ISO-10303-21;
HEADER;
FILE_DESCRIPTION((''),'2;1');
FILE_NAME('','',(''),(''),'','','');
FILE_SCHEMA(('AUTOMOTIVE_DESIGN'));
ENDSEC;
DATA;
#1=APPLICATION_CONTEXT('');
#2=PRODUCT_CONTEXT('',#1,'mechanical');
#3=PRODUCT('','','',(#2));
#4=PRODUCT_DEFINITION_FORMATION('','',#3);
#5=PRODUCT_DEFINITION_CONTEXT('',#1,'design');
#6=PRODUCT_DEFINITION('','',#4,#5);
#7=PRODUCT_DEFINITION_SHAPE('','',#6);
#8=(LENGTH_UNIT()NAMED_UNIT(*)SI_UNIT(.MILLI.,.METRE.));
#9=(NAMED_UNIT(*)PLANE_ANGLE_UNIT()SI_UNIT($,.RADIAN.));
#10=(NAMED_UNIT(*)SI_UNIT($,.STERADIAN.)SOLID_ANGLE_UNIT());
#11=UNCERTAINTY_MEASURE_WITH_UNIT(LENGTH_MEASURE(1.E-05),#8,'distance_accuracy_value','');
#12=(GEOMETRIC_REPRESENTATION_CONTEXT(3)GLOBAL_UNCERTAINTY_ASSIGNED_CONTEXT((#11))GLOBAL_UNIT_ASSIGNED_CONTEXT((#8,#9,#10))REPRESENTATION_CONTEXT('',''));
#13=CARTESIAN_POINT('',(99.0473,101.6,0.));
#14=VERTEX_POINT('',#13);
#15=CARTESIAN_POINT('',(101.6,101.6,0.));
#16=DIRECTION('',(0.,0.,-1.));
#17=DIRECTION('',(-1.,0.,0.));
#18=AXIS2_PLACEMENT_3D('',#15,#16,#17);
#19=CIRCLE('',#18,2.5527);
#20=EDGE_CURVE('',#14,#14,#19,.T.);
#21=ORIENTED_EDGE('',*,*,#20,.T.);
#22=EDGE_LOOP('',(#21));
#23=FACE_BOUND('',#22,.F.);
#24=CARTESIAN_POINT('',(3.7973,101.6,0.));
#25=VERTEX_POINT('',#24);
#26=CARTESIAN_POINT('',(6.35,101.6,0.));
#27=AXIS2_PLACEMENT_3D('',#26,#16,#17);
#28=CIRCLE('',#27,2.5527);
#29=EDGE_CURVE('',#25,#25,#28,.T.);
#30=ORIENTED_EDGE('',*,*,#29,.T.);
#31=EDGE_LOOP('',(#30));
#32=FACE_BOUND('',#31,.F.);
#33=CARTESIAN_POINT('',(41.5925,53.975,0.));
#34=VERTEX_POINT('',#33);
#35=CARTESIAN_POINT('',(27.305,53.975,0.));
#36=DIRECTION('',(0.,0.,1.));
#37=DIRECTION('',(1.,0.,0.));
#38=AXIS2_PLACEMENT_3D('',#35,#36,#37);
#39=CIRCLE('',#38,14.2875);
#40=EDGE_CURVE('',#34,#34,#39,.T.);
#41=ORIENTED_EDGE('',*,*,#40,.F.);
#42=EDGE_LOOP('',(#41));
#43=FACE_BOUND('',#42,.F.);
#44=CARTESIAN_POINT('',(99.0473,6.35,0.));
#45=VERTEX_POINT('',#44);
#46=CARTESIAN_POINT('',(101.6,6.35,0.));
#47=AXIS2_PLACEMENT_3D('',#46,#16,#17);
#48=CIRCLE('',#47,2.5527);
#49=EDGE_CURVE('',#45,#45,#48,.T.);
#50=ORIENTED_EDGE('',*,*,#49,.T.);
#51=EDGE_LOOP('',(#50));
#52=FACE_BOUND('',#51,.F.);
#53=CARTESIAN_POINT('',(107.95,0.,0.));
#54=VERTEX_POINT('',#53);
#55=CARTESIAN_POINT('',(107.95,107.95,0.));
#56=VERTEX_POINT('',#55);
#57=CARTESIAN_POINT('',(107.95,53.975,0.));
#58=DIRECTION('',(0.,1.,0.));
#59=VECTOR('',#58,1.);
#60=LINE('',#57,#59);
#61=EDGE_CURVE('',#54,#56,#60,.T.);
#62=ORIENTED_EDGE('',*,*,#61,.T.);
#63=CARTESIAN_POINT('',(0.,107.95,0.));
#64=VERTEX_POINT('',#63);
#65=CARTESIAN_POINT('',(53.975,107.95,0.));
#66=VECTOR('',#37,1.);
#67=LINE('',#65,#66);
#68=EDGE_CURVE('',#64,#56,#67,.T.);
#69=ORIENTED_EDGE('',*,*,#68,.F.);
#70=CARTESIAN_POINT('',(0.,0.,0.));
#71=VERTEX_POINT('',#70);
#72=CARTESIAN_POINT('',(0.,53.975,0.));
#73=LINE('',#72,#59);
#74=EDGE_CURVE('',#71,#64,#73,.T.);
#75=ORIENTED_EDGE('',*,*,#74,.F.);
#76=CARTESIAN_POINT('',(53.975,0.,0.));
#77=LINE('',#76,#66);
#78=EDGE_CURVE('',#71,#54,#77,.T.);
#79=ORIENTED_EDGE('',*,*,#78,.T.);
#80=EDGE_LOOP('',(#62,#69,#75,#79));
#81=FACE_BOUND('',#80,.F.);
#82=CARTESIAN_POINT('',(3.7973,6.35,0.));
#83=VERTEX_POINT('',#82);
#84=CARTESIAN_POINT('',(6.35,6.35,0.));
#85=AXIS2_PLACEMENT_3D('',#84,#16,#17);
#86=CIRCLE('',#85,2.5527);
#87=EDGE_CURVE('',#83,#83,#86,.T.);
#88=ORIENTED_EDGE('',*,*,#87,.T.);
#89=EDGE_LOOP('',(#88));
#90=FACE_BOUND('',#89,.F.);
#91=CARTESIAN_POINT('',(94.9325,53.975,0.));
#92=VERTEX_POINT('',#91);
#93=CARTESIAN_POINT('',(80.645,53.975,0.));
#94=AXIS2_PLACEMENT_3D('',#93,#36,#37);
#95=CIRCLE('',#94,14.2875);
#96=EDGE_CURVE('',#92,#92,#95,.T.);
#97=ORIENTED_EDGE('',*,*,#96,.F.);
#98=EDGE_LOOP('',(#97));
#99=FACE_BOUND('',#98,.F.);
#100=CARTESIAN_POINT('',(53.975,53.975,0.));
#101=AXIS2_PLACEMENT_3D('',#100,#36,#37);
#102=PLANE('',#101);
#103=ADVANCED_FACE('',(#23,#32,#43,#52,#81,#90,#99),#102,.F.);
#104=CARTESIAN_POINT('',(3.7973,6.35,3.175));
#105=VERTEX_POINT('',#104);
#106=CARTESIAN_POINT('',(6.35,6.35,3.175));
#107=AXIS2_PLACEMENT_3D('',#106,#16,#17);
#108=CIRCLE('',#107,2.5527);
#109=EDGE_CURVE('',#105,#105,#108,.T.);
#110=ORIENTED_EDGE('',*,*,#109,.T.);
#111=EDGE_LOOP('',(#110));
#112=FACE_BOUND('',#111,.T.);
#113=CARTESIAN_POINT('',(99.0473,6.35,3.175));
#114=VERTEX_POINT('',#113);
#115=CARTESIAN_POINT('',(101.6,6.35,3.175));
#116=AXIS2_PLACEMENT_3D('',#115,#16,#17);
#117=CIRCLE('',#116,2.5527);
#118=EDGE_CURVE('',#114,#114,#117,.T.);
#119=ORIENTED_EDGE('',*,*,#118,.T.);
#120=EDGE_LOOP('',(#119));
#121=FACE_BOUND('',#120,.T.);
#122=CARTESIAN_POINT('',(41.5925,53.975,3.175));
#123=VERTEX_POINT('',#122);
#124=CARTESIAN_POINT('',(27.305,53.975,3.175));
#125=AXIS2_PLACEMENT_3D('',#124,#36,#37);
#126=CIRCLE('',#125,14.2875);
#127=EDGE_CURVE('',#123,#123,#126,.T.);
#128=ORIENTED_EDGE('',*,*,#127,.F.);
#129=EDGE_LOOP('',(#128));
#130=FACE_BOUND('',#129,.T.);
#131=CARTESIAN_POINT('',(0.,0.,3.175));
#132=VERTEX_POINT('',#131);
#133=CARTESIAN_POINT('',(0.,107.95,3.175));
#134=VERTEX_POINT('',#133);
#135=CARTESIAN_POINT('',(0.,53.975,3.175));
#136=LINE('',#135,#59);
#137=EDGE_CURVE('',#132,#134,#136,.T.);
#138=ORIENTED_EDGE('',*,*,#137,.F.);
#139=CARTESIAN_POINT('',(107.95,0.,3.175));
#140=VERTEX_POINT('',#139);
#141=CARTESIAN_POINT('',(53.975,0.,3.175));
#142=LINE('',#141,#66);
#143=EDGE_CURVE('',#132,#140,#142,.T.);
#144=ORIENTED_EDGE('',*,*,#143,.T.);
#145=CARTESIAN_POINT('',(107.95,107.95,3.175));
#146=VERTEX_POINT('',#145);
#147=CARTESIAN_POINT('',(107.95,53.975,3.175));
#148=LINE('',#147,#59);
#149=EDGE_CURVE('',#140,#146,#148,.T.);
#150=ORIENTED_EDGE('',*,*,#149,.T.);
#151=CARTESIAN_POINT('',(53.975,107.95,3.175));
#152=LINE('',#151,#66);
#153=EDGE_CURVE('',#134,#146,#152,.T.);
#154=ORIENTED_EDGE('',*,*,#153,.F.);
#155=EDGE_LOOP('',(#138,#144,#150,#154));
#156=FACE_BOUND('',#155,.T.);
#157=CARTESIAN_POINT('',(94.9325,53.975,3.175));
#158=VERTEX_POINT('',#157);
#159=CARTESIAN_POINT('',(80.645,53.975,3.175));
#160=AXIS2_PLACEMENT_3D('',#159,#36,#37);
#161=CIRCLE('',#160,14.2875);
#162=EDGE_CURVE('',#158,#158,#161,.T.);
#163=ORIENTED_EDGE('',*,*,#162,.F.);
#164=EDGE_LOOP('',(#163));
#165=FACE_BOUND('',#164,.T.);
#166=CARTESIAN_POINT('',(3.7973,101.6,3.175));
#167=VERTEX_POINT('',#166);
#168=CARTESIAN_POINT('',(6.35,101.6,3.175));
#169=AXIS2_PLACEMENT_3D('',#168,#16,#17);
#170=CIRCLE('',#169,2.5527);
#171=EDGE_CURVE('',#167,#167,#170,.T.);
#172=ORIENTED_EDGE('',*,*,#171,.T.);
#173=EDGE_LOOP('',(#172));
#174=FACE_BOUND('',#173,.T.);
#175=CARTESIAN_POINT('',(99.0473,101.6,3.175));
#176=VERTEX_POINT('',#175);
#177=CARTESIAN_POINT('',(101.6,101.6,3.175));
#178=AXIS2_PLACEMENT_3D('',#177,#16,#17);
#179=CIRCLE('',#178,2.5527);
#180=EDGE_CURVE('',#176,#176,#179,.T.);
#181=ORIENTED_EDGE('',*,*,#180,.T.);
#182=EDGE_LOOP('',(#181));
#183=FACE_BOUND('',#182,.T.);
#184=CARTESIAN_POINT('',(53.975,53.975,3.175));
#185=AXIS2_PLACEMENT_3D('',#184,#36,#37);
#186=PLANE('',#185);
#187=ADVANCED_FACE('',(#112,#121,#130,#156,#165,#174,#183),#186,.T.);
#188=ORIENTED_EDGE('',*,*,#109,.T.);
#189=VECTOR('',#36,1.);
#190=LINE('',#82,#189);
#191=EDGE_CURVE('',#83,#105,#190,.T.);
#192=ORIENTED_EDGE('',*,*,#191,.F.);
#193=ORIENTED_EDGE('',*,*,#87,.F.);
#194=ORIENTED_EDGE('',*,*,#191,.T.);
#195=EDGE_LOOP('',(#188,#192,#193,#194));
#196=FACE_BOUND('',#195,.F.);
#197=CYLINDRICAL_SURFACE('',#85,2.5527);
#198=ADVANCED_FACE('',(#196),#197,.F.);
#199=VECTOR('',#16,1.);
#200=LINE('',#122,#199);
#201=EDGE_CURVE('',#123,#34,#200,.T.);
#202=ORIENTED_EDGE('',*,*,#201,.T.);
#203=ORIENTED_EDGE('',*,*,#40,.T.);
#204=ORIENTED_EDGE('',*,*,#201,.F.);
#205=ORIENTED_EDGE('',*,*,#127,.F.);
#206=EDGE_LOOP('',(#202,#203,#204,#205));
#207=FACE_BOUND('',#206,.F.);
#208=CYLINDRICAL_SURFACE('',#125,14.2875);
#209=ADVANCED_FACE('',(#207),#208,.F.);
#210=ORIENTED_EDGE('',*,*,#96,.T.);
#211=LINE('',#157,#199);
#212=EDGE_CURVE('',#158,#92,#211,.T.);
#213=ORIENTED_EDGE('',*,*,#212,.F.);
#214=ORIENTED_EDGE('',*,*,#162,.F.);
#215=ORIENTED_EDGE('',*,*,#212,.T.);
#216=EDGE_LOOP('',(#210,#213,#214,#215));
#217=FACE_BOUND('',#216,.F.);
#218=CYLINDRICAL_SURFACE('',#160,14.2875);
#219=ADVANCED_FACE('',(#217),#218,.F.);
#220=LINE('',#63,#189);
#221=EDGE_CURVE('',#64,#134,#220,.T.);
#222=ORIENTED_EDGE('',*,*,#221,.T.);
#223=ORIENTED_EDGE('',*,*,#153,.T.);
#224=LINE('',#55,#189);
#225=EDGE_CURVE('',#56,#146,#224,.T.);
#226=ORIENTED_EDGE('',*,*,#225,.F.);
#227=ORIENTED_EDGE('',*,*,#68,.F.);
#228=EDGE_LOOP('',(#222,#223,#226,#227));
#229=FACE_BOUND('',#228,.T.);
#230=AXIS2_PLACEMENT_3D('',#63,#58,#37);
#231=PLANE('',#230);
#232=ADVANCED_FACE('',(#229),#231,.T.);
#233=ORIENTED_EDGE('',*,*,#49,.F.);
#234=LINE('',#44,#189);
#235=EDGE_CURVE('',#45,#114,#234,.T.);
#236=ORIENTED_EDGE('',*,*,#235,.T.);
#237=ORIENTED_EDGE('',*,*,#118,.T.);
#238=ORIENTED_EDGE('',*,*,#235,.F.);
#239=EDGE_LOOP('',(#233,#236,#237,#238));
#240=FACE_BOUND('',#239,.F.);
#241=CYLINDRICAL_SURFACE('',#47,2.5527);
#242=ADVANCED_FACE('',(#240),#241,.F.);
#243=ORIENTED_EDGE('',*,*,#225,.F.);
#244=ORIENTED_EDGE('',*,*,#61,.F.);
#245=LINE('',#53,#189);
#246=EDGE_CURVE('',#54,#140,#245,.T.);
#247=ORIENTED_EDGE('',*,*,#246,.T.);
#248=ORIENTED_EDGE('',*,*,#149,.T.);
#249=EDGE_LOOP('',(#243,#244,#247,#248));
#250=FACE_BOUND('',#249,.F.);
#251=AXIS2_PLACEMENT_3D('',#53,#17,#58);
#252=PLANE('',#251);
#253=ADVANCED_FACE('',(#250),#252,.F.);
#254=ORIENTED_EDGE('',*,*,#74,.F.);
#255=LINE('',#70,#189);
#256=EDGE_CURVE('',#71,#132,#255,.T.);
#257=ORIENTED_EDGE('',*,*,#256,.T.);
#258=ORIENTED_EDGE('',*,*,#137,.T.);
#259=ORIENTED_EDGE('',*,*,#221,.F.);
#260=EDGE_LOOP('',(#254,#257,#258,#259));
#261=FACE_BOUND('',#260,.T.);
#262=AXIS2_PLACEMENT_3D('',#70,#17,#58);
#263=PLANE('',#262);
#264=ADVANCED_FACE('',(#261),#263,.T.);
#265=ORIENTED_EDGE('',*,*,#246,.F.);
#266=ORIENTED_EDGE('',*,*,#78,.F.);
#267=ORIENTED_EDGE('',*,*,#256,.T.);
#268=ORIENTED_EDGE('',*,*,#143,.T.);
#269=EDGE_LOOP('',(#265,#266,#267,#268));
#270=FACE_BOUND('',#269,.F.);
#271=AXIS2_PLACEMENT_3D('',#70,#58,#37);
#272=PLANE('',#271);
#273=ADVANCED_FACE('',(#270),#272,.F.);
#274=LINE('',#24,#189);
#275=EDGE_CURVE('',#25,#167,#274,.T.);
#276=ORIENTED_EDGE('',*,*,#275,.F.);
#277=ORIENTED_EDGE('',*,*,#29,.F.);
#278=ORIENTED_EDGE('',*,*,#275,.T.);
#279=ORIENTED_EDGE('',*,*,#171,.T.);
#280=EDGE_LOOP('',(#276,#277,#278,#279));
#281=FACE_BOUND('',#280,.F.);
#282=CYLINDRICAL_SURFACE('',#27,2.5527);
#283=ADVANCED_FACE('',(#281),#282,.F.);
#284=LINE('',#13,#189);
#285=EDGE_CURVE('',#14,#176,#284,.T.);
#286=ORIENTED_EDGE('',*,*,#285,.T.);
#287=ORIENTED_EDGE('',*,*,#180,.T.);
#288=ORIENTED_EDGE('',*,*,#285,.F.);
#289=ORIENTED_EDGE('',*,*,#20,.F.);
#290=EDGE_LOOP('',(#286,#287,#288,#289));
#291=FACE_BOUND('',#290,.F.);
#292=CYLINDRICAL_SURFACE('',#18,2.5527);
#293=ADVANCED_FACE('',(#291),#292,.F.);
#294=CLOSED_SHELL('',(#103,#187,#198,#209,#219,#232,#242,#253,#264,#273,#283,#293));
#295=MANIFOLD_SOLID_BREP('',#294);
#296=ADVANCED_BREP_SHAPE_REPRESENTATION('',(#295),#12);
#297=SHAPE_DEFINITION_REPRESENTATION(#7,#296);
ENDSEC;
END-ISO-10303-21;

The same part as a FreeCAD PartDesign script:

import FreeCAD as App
import Part
import Sketcher

V = App.Vector
Q = App.Units.Quantity


def add_polygon(sketch, points):
    """Adds a closed chain of lines whose ends are joined by coincident constraints."""
    first, n = sketch.GeometryCount, len(points)
    for a, b in zip(points, points[1:] + points[:1]):
        sketch.addGeometry(Part.LineSegment(App.Vector(*a, 0), App.Vector(*b, 0)), False)
    for i in range(n):
        sketch.addConstraint(Sketcher.Constraint("Coincident", first + i, 2, first + (i + 1) % n, 1))

doc = App.newDocument("Part")
body = doc.addObject("PartDesign::Body", "Body")

# Sketch on XY plane
sketch1 = body.newObject("Sketcher::SketchObject", "Sketch")
sketch1.AttachmentSupport = (doc.getObject("XY_Plane"), [""])
sketch1.MapMode = "FlatFace"
add_polygon(sketch1, [(0, 108), (0, 0), (108, 0), (108, 108)])  # lines 0-3
sketch1.addConstraint([
    Sketcher.Constraint("Vertical", 0),
    Sketcher.Constraint("Horizontal", 1),
    Sketcher.Constraint("Vertical", 2),
    Sketcher.Constraint("Horizontal", 3),
    Sketcher.Constraint("Coincident", 0, 2, -1, 1),
    Sketcher.Constraint("Equal", 3, 0),
    Sketcher.Constraint("DistanceX", 1, 1, 1, 2, Q("4.25 in")),
])
pad1 = body.newObject("PartDesign::Pad", "Pad")
pad1.Profile = sketch1
pad1.Length = Q("0.125 in")

# Sketch on XY plane
sketch2 = body.newObject("Sketcher::SketchObject", "Sketch001")
sketch2.AttachmentSupport = (doc.getObject("XY_Plane"), [""])
sketch2.MapMode = "FlatFace"
sketch2.addGeometry([
    Part.Circle(V(6.3, 101.6, 0), V(0, 0, 1), 2.6),
    Part.Circle(V(101.6, 101.6, 0), V(0, 0, 1), 2.6),
    Part.Circle(V(101.6, 6.3, 0), V(0, 0, 1), 2.6),
    Part.Circle(V(6.3, 6.3, 0), V(0, 0, 1), 2.6),
], False)
sketch2.addConstraint([
    Sketcher.Constraint("Equal", 0, 1),
    Sketcher.Constraint("Equal", 1, 2),
    Sketcher.Constraint("Equal", 2, 3),
    Sketcher.Constraint("Horizontal", 0, 3, 1, 3),
    Sketcher.Constraint("Horizontal", 2, 3, 3, 3),
    Sketcher.Constraint("Vertical", 1, 3, 2, 3),
    Sketcher.Constraint("Vertical", 0, 3, 3, 3),
    Sketcher.Constraint("Diameter", 0, Q("0.201 in")),
    Sketcher.Constraint("DistanceY", -1, 1, 0, 3, Q("4 in")),
    Sketcher.Constraint("DistanceX", -1, 1, 1, 3, Q("4 in")),
    Sketcher.Constraint("DistanceX", -1, 1, 0, 3, Q("0.25 in")),
    Sketcher.Constraint("DistanceY", -1, 1, 2, 3, Q("0.25 in")),
])
pocket1 = body.newObject("PartDesign::Pocket", "Pocket")
pocket1.Profile = sketch2
pocket1.Length = Q("0.125 in")
pocket1.Reversed = True

# Sketch on XY plane
sketch3 = body.newObject("Sketcher::SketchObject", "Sketch002")
sketch3.AttachmentSupport = (doc.getObject("XY_Plane"), [""])
sketch3.MapMode = "FlatFace"
sketch3.AttachmentOffset = App.Placement(V(0, 0, 0.125 * 25.4), App.Rotation())
sketch3.addGeometry([
    Part.Circle(V(27, 54, 0), V(0, 0, 1), 14),
    Part.Circle(V(81, 54, 0), V(0, 0, 1), 14),
], False)
sketch3.addConstraint([
    Sketcher.Constraint("Equal", 0, 1),
    Sketcher.Constraint("Horizontal", 0, 3, 1, 3),
    Sketcher.Constraint("Diameter", 0, Q("1.125 in")),
    Sketcher.Constraint("DistanceX", 0, 3, 1, 3, Q("2.1 in")),
    Sketcher.Constraint("DistanceX", -1, 1, 0, 3, Q("1.075 in")),
    Sketcher.Constraint("DistanceY", -1, 1, 0, 3, Q("2.125 in")),
])
pocket2 = body.newObject("PartDesign::Pocket", "Pocket001")
pocket2.Profile = sketch3
pocket2.Length = Q("0.125 in")

doc.recompute()
